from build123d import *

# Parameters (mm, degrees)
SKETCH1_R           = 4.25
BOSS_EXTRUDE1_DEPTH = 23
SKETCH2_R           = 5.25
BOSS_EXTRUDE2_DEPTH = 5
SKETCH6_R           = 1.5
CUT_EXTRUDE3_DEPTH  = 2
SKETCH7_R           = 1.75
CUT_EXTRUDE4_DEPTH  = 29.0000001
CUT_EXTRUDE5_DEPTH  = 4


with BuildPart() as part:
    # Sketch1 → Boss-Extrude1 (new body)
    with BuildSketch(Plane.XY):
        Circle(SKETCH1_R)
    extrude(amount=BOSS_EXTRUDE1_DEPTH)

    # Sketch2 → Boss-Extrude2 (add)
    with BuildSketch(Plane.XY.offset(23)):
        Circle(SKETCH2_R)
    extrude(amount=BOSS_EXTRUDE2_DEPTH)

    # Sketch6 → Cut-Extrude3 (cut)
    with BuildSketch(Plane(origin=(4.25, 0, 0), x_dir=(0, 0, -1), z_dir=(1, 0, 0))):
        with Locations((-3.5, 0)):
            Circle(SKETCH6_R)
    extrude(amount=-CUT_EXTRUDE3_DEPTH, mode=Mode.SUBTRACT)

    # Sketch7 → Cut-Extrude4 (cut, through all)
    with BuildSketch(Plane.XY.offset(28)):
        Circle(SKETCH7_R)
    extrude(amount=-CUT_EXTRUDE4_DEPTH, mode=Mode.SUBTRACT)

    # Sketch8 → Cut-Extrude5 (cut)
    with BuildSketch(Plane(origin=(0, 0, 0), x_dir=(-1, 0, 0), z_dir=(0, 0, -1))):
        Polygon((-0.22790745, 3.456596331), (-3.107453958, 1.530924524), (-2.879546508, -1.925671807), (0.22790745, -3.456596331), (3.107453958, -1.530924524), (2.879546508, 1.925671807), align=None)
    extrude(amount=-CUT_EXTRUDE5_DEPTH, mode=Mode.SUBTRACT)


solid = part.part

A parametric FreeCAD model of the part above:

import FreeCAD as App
import Part
import Sketcher
Q = App.Units.Quantity


def add_polygon(sketch, points):
    """Adds a closed chain of lines whose ends are joined by coincident constraints."""
    first, n = sketch.GeometryCount, len(points)
    for a, b in zip(points, points[1:] + points[:1]):
        sketch.addGeometry(Part.LineSegment(App.Vector(*a, 0), App.Vector(*b, 0)), False)
    for i in range(n):
        sketch.addConstraint(Sketcher.Constraint("Coincident", first + i, 2, first + (i + 1) % n, 1))

doc = App.newDocument("Part")
body = doc.addObject("PartDesign::Body", "Body")

# Sketch on XY plane
sketch1 = body.newObject("Sketcher::SketchObject", "Sketch")
sketch1.AttachmentSupport = (doc.getObject("XY_Plane"), [""])
sketch1.MapMode = "FlatFace"
sketch1.addGeometry(Part.Circle(App.Vector(0, 0, 0), App.Vector(0, 0, 1), 4.25), False)
sketch1.addConstraint([
    Sketcher.Constraint("Coincident", 0, 3, -1, 1),
    Sketcher.Constraint("Diameter", 0, Q("8.5 mm")),
])
pad1 = body.newObject("PartDesign::Pad", "Pad")
pad1.Profile = sketch1
pad1.Length = 23

# Sketch on XY plane
sketch2 = body.newObject("Sketcher::SketchObject", "Sketch001")
sketch2.AttachmentSupport = (doc.getObject("XY_Plane"), [""])
sketch2.MapMode = "FlatFace"
sketch2.AttachmentOffset = App.Placement(App.Vector(0, 0, 23), App.Rotation())
sketch2.addGeometry(Part.Circle(App.Vector(0, 0, 0), App.Vector(0, 0, 1), 5.25), False)
sketch2.addConstraint([
    Sketcher.Constraint("Coincident", 0, 3, -1, 1),
    Sketcher.Constraint("Diameter", 0, Q("10.5 mm")),
])
pad2 = body.newObject("PartDesign::Pad", "Pad001")
pad2.Profile = sketch2
pad2.Length = 5

# Sketch on YZ plane
sketch3 = body.newObject("Sketcher::SketchObject", "Sketch002")
sketch3.AttachmentSupport = (doc.getObject("YZ_Plane"), [""])
sketch3.MapMode = "FlatFace"
sketch3.AttachmentOffset = App.Placement(App.Vector(0, 0, 4.25), App.Rotation())
sketch3.addGeometry(Part.Circle(App.Vector(0, 3.5, 0), App.Vector(0, 0, 1), 1.5), False)
sketch3.addConstraint([
    Sketcher.Constraint("PointOnObject", 0, 3, -2),
    Sketcher.Constraint("Diameter", 0, Q("3 mm")),
    Sketcher.Constraint("DistanceY", -1, 1, 0, 3, Q("3.5 mm")),
])
pocket1 = body.newObject("PartDesign::Pocket", "Pocket")
pocket1.Profile = sketch3
pocket1.Length = 2

# Sketch on XY plane
sketch4 = body.newObject("Sketcher::SketchObject", "Sketch003")
sketch4.AttachmentSupport = (doc.getObject("XY_Plane"), [""])
sketch4.MapMode = "FlatFace"
sketch4.AttachmentOffset = App.Placement(App.Vector(0, 0, 28), App.Rotation())
sketch4.addGeometry(Part.Circle(App.Vector(0, 0, 0), App.Vector(0, 0, 1), 1.75), False)
sketch4.addConstraint([
    Sketcher.Constraint("Coincident", 0, 3, -1, 1),
    Sketcher.Constraint("Diameter", 0, Q("3.5 mm")),
])
pocket2 = body.newObject("PartDesign::Pocket", "Pocket001")
pocket2.Profile = sketch4
pocket2.Type = "ThroughAll"

# Sketch on XY plane
sketch5 = body.newObject("Sketcher::SketchObject", "Sketch004")
sketch5.AttachmentSupport = (doc.getObject("XY_Plane"), [""])
sketch5.MapMode = "FlatFace"
add_polygon(sketch5, [(0.227907, 3.456596), (3.107454, 1.530925), (2.879547, -1.925672), (-0.227907, -3.456596), (-3.107454, -1.530925), (-2.879547, 1.925672)])  # lines 0-5
sketch5.addConstraint([
    Sketcher.Constraint("Symmetric", 0, 2, 3, 2, -1, 1),
    Sketcher.Constraint("Symmetric", 1, 2, 4, 2, -1, 1),
    Sketcher.Constraint("Symmetric", 2, 2, 5, 2, -1, 1),
    Sketcher.Constraint("Equal", 0, 1),
    Sketcher.Constraint("Equal", 1, 2),
    Sketcher.Constraint("DistanceX", 3, 2, 1, 2, Q("5.987 mm")),
    Sketcher.Constraint("Distance", 0, Q("3.464102 mm")),
    Sketcher.Constraint("DistanceY", 1, 2, -1, 1, Q("1.925672 mm")),
    Sketcher.Constraint("DistanceX", 2, 2, 0, 2, Q("3.335361 mm")),
])
pocket3 = body.newObject("PartDesign::Pocket", "Pocket002")
pocket3.Profile = sketch5
pocket3.Length = 4
pocket3.Reversed = True

doc.recompute()
